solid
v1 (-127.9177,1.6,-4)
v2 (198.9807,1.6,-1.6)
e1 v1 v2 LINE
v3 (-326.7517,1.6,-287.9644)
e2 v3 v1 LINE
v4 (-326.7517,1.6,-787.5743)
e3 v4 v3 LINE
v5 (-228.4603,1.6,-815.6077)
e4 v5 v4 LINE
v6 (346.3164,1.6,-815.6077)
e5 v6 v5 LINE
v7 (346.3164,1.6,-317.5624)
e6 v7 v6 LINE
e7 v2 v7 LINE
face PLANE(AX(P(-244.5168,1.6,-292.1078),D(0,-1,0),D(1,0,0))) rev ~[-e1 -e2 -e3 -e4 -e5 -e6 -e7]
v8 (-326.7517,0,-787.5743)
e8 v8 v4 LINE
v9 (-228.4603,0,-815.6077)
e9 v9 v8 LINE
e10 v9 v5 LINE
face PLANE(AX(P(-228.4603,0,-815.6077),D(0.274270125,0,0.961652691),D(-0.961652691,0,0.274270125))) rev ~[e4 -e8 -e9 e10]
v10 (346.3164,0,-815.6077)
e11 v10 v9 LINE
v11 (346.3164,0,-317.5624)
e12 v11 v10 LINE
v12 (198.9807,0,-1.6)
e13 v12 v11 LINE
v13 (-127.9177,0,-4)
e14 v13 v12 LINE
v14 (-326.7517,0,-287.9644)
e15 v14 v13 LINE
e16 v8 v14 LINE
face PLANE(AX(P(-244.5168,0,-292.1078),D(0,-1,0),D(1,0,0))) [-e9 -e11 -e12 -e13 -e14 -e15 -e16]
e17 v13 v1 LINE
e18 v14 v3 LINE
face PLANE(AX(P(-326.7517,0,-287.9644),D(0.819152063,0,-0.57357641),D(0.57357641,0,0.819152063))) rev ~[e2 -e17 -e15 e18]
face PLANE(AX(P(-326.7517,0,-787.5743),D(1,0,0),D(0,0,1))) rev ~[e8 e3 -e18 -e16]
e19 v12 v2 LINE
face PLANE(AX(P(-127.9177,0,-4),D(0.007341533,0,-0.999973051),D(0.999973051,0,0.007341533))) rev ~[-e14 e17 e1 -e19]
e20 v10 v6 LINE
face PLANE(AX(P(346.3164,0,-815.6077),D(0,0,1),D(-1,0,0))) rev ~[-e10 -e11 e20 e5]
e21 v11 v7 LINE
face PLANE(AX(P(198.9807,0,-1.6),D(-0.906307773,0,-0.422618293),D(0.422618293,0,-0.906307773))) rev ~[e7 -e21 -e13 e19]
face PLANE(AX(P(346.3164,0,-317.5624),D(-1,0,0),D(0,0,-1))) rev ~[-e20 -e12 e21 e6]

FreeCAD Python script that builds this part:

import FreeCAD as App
import Part
import Sketcher

V = App.Vector
Q = App.Units.Quantity


def add_polygon(sketch, points):
    """Adds a closed chain of lines whose ends are joined by coincident constraints."""
    first, n = sketch.GeometryCount, len(points)
    for a, b in zip(points, points[1:] + points[:1]):
        sketch.addGeometry(Part.LineSegment(App.Vector(*a, 0), App.Vector(*b, 0)), False)
    for i in range(n):
        sketch.addConstraint(Sketcher.Constraint("Coincident", first + i, 2, first + (i + 1) % n, 1))

doc = App.newDocument("Part")
params = doc.addObject("Spreadsheet::Sheet", "Params")
for row, (alias, value) in enumerate([
    ("sketch1_width", "22.629 in"),
    ("pad1_length", "0.0629921 in"),
], start=1):
    params.set(f"A{row}", alias)
    params.set(f"B{row}", "=" + value)
    params.setAlias(f"B{row}", alias)

body = doc.addObject("PartDesign::Body", "Body")

sketch1 = body.newObject("Sketcher::SketchObject", "Sketch")
sketch1.AttachmentSupport = (doc.getObject("XZ_Plane"), [""])
sketch1.MapMode = "FlatFace"
add_polygon(sketch1, [(-326.7517, -787.5743), (-228.4603, -815.6077), (346.3164, -815.6077), (346.3164, -317.5624), (198.9807, -1.6), (-127.9177, -4), (-326.7517, -287.9644)])
sketch1.addConstraint([
    Sketcher.Constraint("Horizontal", 1),
    Sketcher.Constraint("Vertical", 2),
    Sketcher.Constraint("Vertical", 6),
    Sketcher.Constraint("DistanceX", 1, 1, 1, 2, Q("22.629 in")),
    Sketcher.Constraint("DistanceY", 3, 2, -1, 1, Q("0.063 in")),
    Sketcher.Constraint("Distance", 5, Q("13.6479 in")),
    Sketcher.Constraint("DistanceY", 2, 1, 2, 2, 498.0453),
    Sketcher.Constraint("DistanceY", 6, 2, 6, 1, 499.61),
    Sketcher.Constraint("DistanceX", 0, 2, -1, 1, Q("8.9945 in")),
    Sketcher.Constraint("DistanceY", 4, 2, 3, 2, Q("0.0945 in")),
    Sketcher.Constraint("DistanceX", 5, 2, 4, 2, Q("7.8281 in")),
    Sketcher.Constraint("DistanceY", 6, 2, 2, 2, Q("18.5044 in")),
    Sketcher.Constraint("Distance", 0, 102.211),
    Sketcher.Constraint("Distance", 3, 348.626),
])
sketch1.setExpression("Constraints[10]", "Params.sketch1_width")
pad1 = body.newObject("PartDesign::Pad", "Pad")
pad1.Profile = sketch1
pad1.setExpression("Length", "Params.pad1_length")
pad1.Reversed = True

doc.recompute()
